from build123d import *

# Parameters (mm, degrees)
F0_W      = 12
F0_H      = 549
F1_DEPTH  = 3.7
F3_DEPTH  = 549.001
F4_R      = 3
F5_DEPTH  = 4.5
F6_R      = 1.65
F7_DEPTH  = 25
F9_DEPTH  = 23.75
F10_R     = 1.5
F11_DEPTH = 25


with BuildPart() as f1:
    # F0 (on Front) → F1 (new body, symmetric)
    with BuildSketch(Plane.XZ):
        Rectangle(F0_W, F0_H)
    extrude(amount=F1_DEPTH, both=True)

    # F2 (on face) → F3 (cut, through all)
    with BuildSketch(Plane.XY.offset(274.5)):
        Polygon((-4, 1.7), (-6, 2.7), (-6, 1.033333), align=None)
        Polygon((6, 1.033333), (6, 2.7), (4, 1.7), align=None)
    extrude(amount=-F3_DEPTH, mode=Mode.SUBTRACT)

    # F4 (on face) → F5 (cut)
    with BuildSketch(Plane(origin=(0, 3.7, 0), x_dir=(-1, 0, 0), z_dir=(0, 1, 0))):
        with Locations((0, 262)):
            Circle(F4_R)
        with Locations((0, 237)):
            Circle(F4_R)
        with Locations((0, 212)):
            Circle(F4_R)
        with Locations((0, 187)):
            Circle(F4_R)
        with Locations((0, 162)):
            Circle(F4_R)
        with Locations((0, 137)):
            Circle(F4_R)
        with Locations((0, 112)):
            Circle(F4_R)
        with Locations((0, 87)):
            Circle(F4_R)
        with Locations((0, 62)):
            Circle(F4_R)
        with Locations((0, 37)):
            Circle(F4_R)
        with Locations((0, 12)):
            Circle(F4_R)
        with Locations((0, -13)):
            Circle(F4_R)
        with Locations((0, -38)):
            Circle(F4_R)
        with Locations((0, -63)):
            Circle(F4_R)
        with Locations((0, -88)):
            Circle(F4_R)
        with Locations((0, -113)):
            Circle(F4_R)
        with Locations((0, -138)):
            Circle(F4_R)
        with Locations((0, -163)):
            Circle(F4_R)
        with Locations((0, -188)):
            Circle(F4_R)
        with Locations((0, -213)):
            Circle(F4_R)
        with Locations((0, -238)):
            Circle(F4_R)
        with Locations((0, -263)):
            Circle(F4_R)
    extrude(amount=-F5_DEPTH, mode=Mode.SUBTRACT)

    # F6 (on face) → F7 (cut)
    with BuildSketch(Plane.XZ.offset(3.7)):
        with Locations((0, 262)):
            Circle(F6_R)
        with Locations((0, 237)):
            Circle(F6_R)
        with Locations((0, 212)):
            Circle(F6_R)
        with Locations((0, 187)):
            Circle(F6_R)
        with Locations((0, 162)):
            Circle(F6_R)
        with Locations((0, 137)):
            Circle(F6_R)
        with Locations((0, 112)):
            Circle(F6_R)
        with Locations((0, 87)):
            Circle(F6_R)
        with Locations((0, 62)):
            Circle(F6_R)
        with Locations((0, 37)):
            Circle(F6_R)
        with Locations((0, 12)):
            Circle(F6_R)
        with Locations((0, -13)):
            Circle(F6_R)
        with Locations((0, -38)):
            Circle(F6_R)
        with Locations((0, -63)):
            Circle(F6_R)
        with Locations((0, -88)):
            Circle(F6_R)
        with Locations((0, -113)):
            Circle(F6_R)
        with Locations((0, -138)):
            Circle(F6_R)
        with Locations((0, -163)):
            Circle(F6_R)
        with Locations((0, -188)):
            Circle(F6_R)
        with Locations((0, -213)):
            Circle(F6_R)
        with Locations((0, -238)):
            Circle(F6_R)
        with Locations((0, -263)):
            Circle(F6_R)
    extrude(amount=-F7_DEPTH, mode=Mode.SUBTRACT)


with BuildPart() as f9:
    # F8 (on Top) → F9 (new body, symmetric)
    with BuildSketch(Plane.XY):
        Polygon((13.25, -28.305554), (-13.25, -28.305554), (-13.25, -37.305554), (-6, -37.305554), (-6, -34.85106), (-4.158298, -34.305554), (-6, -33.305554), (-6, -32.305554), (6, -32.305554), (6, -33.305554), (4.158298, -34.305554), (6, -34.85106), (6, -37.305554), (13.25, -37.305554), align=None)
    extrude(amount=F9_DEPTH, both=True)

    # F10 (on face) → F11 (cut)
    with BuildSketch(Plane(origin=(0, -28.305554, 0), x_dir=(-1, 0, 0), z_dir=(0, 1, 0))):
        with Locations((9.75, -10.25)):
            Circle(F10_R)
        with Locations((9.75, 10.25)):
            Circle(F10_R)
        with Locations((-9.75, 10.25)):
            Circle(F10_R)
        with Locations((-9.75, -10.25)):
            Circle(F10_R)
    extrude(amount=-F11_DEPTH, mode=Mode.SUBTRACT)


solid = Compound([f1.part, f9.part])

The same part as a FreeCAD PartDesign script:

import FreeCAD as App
import Part
import Sketcher

doc = App.newDocument("Part")
body = doc.addObject("PartDesign::Body", "Body")

# Sketch on XZ plane
sketch1 = doc.addObject("Sketcher::SketchObject", "Sketch")
body.addObject(sketch1)
sketch1.AttachmentSupport = (doc.XZ_Plane, [""])
sketch1.MapMode = "FlatFace"
sketch1.addGeometry([
    Part.LineSegment(App.Vector(-6, 274.5, 0), App.Vector(-6, -274.5, 0)),
    Part.LineSegment(App.Vector(-6, -274.5, 0), App.Vector(6, -274.5, 0)),
    Part.LineSegment(App.Vector(6, -274.5, 0), App.Vector(6, 274.5, 0)),
    Part.LineSegment(App.Vector(6, 274.5, 0), App.Vector(-6, 274.5, 0)),
], False)
sketch1.addConstraint([
    Sketcher.Constraint("Coincident", 0, 2, 1, 1),
    Sketcher.Constraint("Coincident", 1, 2, 2, 1),
    Sketcher.Constraint("Coincident", 2, 2, 3, 1),
    Sketcher.Constraint("Coincident", 3, 2, 0, 1),
    Sketcher.Constraint("Vertical", 0),
    Sketcher.Constraint("Horizontal", 1),
    Sketcher.Constraint("Vertical", 2),
    Sketcher.Constraint("Horizontal", 3),
    Sketcher.Constraint("Symmetric", 0, 2, 2, 2, -1, 1),
    Sketcher.Constraint("DistanceX", 1, 1, 1, 2, 12.0),
    Sketcher.Constraint("DistanceY", 0, 2, 0, 1, 549.0),
])
pad1 = doc.addObject("PartDesign::Pad", "Pad")
body.addObject(pad1)
pad1.Profile = sketch1
pad1.Length = 7.4
pad1.Midplane = True

# Sketch on XY plane
sketch2 = doc.addObject("Sketcher::SketchObject", "Sketch001")
body.addObject(sketch2)
sketch2.AttachmentSupport = (doc.XY_Plane, [""])
sketch2.MapMode = "FlatFace"
sketch2.AttachmentOffset = App.Placement(App.Vector(0, 0, 274.5), App.Rotation())
sketch2.addGeometry([
    Part.LineSegment(App.Vector(-4, 1.7, 0), App.Vector(-6, 2.7, 0)),  # 0
    Part.LineSegment(App.Vector(-6, 2.7, 0), App.Vector(-6, 1.033333, 0)),  # 1
    Part.LineSegment(App.Vector(-6, 1.033333, 0), App.Vector(-4, 1.7, 0)),  # 2
    Part.LineSegment(App.Vector(6, 1.033333, 0), App.Vector(6, 2.7, 0)),  # 3
    Part.LineSegment(App.Vector(6, 2.7, 0), App.Vector(4, 1.7, 0)),  # 4
    Part.LineSegment(App.Vector(4, 1.7, 0), App.Vector(6, 1.033333, 0)),  # 5
], False)
sketch2.addConstraint([
    Sketcher.Constraint("Coincident", 0, 2, 1, 1),
    Sketcher.Constraint("Coincident", 1, 2, 2, 1),
    Sketcher.Constraint("Coincident", 2, 2, 0, 1),
    Sketcher.Constraint("Coincident", 3, 2, 4, 1),
    Sketcher.Constraint("Coincident", 4, 2, 5, 1),
    Sketcher.Constraint("Coincident", 5, 2, 3, 1),
    Sketcher.Constraint("Vertical", 1),
    Sketcher.Constraint("Vertical", 3),
    Sketcher.Constraint("Symmetric", 0, 2, 3, 2, -2),
    Sketcher.Constraint("Symmetric", 2, 2, 4, 2, -2),
    Sketcher.Constraint("Horizontal", 1, 2, 5, 2),
    Sketcher.Constraint("DistanceX", 0, 2, -1, 1, 6.0),
    Sketcher.Constraint("DistanceX", 2, 2, -1, 1, 4.0),
    Sketcher.Constraint("DistanceY", 2, 2, 0, 2, 1.0),
    Sketcher.Constraint("DistanceY", -1, 1, 0, 2, 2.7),
    Sketcher.Constraint("DistanceY", 1, 2, 1, 1, 1.666667),
])
pocket1 = doc.addObject("PartDesign::Pocket", "Pocket")
body.addObject(pocket1)
pocket1.Profile = sketch2
pocket1.Type = "ThroughAll"

# Sketch on XZ plane
sketch3 = doc.addObject("Sketcher::SketchObject", "Sketch002")
body.addObject(sketch3)
sketch3.AttachmentSupport = (doc.XZ_Plane, [""])
sketch3.MapMode = "FlatFace"
sketch3.AttachmentOffset = App.Placement(App.Vector(0, 0, -3.7), App.Rotation())
sketch3.addGeometry([
    Part.Circle(App.Vector(0, 262, 0), App.Vector(0, 0, 1), 3),  # 0
    Part.Circle(App.Vector(0, 237, 0), App.Vector(0, 0, 1), 3),  # 1
    Part.Circle(App.Vector(0, 212, 0), App.Vector(0, 0, 1), 3),  # 2
    Part.Circle(App.Vector(0, 187, 0), App.Vector(0, 0, 1), 3),  # 3
    Part.Circle(App.Vector(0, 162, 0), App.Vector(0, 0, 1), 3),  # 4
    Part.Circle(App.Vector(0, 137, 0), App.Vector(0, 0, 1), 3),  # 5
    Part.Circle(App.Vector(0, 112, 0), App.Vector(0, 0, 1), 3),  # 6
    Part.Circle(App.Vector(0, 87, 0), App.Vector(0, 0, 1), 3),  # 7
    Part.Circle(App.Vector(0, 62, 0), App.Vector(0, 0, 1), 3),  # 8
    Part.Circle(App.Vector(0, 37, 0), App.Vector(0, 0, 1), 3),  # 9
    Part.Circle(App.Vector(0, 12, 0), App.Vector(0, 0, 1), 3),  # 10
    Part.Circle(App.Vector(0, -13, 0), App.Vector(0, 0, 1), 3),  # 11
    Part.Circle(App.Vector(0, -38, 0), App.Vector(0, 0, 1), 3),  # 12
    Part.Circle(App.Vector(0, -63, 0), App.Vector(0, 0, 1), 3),  # 13
    Part.Circle(App.Vector(0, -88, 0), App.Vector(0, 0, 1), 3),  # 14
    Part.Circle(App.Vector(0, -113, 0), App.Vector(0, 0, 1), 3),  # 15
    Part.Circle(App.Vector(0, -138, 0), App.Vector(0, 0, 1), 3),  # 16
    Part.Circle(App.Vector(0, -163, 0), App.Vector(0, 0, 1), 3),  # 17
    Part.Circle(App.Vector(0, -188, 0), App.Vector(0, 0, 1), 3),  # 18
    Part.Circle(App.Vector(0, -213, 0), App.Vector(0, 0, 1), 3),  # 19
    Part.Circle(App.Vector(0, -238, 0), App.Vector(0, 0, 1), 3),  # 20
    Part.Circle(App.Vector(0, -263, 0), App.Vector(0, 0, 1), 3),  # 21
], False)
sketch3.addConstraint([
    Sketcher.Constraint("Equal", 0, 1),
    Sketcher.Constraint("Equal", 1, 2),
    Sketcher.Constraint("Equal", 2, 3),
    Sketcher.Constraint("Equal", 3, 4),
    Sketcher.Constraint("Equal", 4, 5),
    Sketcher.Constraint("Equal", 5, 6),
    Sketcher.Constraint("Equal", 6, 7),
    Sketcher.Constraint("Equal", 7, 8),
    Sketcher.Constraint("Equal", 8, 9),
    Sketcher.Constraint("Equal", 9, 10),
    Sketcher.Constraint("Equal", 10, 11),
    Sketcher.Constraint("Equal", 11, 12),
    Sketcher.Constraint("Equal", 12, 13),
    Sketcher.Constraint("Equal", 13, 14),
    Sketcher.Constraint("Equal", 14, 15),
    Sketcher.Constraint("Equal", 15, 16),
    Sketcher.Constraint("Equal", 16, 17),
    Sketcher.Constraint("Equal", 17, 18),
    Sketcher.Constraint("Equal", 18, 19),
    Sketcher.Constraint("Equal", 19, 20),
    Sketcher.Constraint("Equal", 20, 21),
    Sketcher.Constraint("PointOnObject", 0, 3, -2),
    Sketcher.Constraint("PointOnObject", 1, 3, -2),
    Sketcher.Constraint("PointOnObject", 2, 3, -2),
    Sketcher.Constraint("PointOnObject", 3, 3, -2),
    Sketcher.Constraint("PointOnObject", 4, 3, -2),
    Sketcher.Constraint("PointOnObject", 5, 3, -2),
    Sketcher.Constraint("PointOnObject", 6, 3, -2),
    Sketcher.Constraint("PointOnObject", 7, 3, -2),
    Sketcher.Constraint("PointOnObject", 8, 3, -2),
    Sketcher.Constraint("PointOnObject", 9, 3, -2),
    Sketcher.Constraint("PointOnObject", 10, 3, -2),
    Sketcher.Constraint("PointOnObject", 11, 3, -2),
    Sketcher.Constraint("PointOnObject", 12, 3, -2),
    Sketcher.Constraint("PointOnObject", 13, 3, -2),
    Sketcher.Constraint("PointOnObject", 14, 3, -2),
    Sketcher.Constraint("PointOnObject", 15, 3, -2),
    Sketcher.Constraint("PointOnObject", 16, 3, -2),
    Sketcher.Constraint("PointOnObject", 17, 3, -2),
    Sketcher.Constraint("PointOnObject", 18, 3, -2),
    Sketcher.Constraint("PointOnObject", 19, 3, -2),
    Sketcher.Constraint("PointOnObject", 20, 3, -2),
    Sketcher.Constraint("PointOnObject", 21, 3, -2),
    Sketcher.Constraint("Diameter", 0, 6.0),
    Sketcher.Constraint("DistanceY", -1, 1, 0, 3, 262.0),
    Sketcher.Constraint("DistanceY", -1, 1, 1, 3, 237.0),
    Sketcher.Constraint("DistanceY", -1, 1, 2, 3, 212.0),
    Sketcher.Constraint("DistanceY", -1, 1, 3, 3, 187.0),
    Sketcher.Constraint("DistanceY", -1, 1, 4, 3, 162.0),
    Sketcher.Constraint("DistanceY", -1, 1, 5, 3, 137.0),
    Sketcher.Constraint("DistanceY", -1, 1, 6, 3, 112.0),
    Sketcher.Constraint("DistanceY", -1, 1, 7, 3, 87.0),
    Sketcher.Constraint("DistanceY", -1, 1, 8, 3, 62.0),
    Sketcher.Constraint("DistanceY", -1, 1, 9, 3, 37.0),
    Sketcher.Constraint("DistanceY", -1, 1, 10, 3, 12.0),
    Sketcher.Constraint("DistanceY", 11, 3, -1, 1, 13.0),
    Sketcher.Constraint("DistanceY", 12, 3, -1, 1, 38.0),
    Sketcher.Constraint("DistanceY", 13, 3, -1, 1, 63.0),
    Sketcher.Constraint("DistanceY", 14, 3, -1, 1, 88.0),
    Sketcher.Constraint("DistanceY", 15, 3, -1, 1, 113.0),
    Sketcher.Constraint("DistanceY", 16, 3, -1, 1, 138.0),
    Sketcher.Constraint("DistanceY", 17, 3, -1, 1, 163.0),
    Sketcher.Constraint("DistanceY", 18, 3, -1, 1, 188.0),
    Sketcher.Constraint("DistanceY", 19, 3, -1, 1, 213.0),
    Sketcher.Constraint("DistanceY", 20, 3, -1, 1, 238.0),
    Sketcher.Constraint("DistanceY", 21, 3, -1, 1, 263.0),
])
pocket2 = doc.addObject("PartDesign::Pocket", "Pocket001")
body.addObject(pocket2)
pocket2.Profile = sketch3
pocket2.Length = 4.5
pocket2.Reversed = True

# Sketch on XZ plane
sketch4 = doc.addObject("Sketcher::SketchObject", "Sketch003")
body.addObject(sketch4)
sketch4.AttachmentSupport = (doc.XZ_Plane, [""])
sketch4.MapMode = "FlatFace"
sketch4.AttachmentOffset = App.Placement(App.Vector(0, 0, 3.7), App.Rotation())
sketch4.addGeometry([
    Part.Circle(App.Vector(0, 262, 0), App.Vector(0, 0, 1), 1.65),  # 0
    Part.Circle(App.Vector(0, 237, 0), App.Vector(0, 0, 1), 1.65),  # 1
    Part.Circle(App.Vector(0, 212, 0), App.Vector(0, 0, 1), 1.65),  # 2
    Part.Circle(App.Vector(0, 187, 0), App.Vector(0, 0, 1), 1.65),  # 3
    Part.Circle(App.Vector(0, 162, 0), App.Vector(0, 0, 1), 1.65),  # 4
    Part.Circle(App.Vector(0, 137, 0), App.Vector(0, 0, 1), 1.65),  # 5
    Part.Circle(App.Vector(0, 112, 0), App.Vector(0, 0, 1), 1.65),  # 6
    Part.Circle(App.Vector(0, 87, 0), App.Vector(0, 0, 1), 1.65),  # 7
    Part.Circle(App.Vector(0, 62, 0), App.Vector(0, 0, 1), 1.65),  # 8
    Part.Circle(App.Vector(0, 37, 0), App.Vector(0, 0, 1), 1.65),  # 9
    Part.Circle(App.Vector(0, 12, 0), App.Vector(0, 0, 1), 1.65),  # 10
    Part.Circle(App.Vector(0, -13, 0), App.Vector(0, 0, 1), 1.65),  # 11
    Part.Circle(App.Vector(0, -38, 0), App.Vector(0, 0, 1), 1.65),  # 12
    Part.Circle(App.Vector(0, -63, 0), App.Vector(0, 0, 1), 1.65),  # 13
    Part.Circle(App.Vector(0, -88, 0), App.Vector(0, 0, 1), 1.65),  # 14
    Part.Circle(App.Vector(0, -113, 0), App.Vector(0, 0, 1), 1.65),  # 15
    Part.Circle(App.Vector(0, -138, 0), App.Vector(0, 0, 1), 1.65),  # 16
    Part.Circle(App.Vector(0, -163, 0), App.Vector(0, 0, 1), 1.65),  # 17
    Part.Circle(App.Vector(0, -188, 0), App.Vector(0, 0, 1), 1.65),  # 18
    Part.Circle(App.Vector(0, -213, 0), App.Vector(0, 0, 1), 1.65),  # 19
    Part.Circle(App.Vector(0, -238, 0), App.Vector(0, 0, 1), 1.65),  # 20
    Part.Circle(App.Vector(0, -263, 0), App.Vector(0, 0, 1), 1.65),  # 21
], False)
sketch4.addConstraint([
    Sketcher.Constraint("Equal", 0, 1),
    Sketcher.Constraint("Equal", 1, 2),
    Sketcher.Constraint("Equal", 2, 3),
    Sketcher.Constraint("Equal", 3, 4),
    Sketcher.Constraint("Equal", 4, 5),
    Sketcher.Constraint("Equal", 5, 6),
    Sketcher.Constraint("Equal", 6, 7),
    Sketcher.Constraint("Equal", 7, 8),
    Sketcher.Constraint("Equal", 8, 9),
    Sketcher.Constraint("Equal", 9, 10),
    Sketcher.Constraint("Equal", 10, 11),
    Sketcher.Constraint("Equal", 11, 12),
    Sketcher.Constraint("Equal", 12, 13),
    Sketcher.Constraint("Equal", 13, 14),
    Sketcher.Constraint("Equal", 14, 15),
    Sketcher.Constraint("Equal", 15, 16),
    Sketcher.Constraint("Equal", 16, 17),
    Sketcher.Constraint("Equal", 17, 18),
    Sketcher.Constraint("Equal", 18, 19),
    Sketcher.Constraint("Equal", 19, 20),
    Sketcher.Constraint("Equal", 20, 21),
    Sketcher.Constraint("PointOnObject", 0, 3, -2),
    Sketcher.Constraint("PointOnObject", 1, 3, -2),
    Sketcher.Constraint("PointOnObject", 2, 3, -2),
    Sketcher.Constraint("PointOnObject", 3, 3, -2),
    Sketcher.Constraint("PointOnObject", 4, 3, -2),
    Sketcher.Constraint("PointOnObject", 5, 3, -2),
    Sketcher.Constraint("PointOnObject", 6, 3, -2),
    Sketcher.Constraint("PointOnObject", 7, 3, -2),
    Sketcher.Constraint("PointOnObject", 8, 3, -2),
    Sketcher.Constraint("PointOnObject", 9, 3, -2),
    Sketcher.Constraint("PointOnObject", 10, 3, -2),
    Sketcher.Constraint("PointOnObject", 11, 3, -2),
    Sketcher.Constraint("PointOnObject", 12, 3, -2),
    Sketcher.Constraint("PointOnObject", 13, 3, -2),
    Sketcher.Constraint("PointOnObject", 14, 3, -2),
    Sketcher.Constraint("PointOnObject", 15, 3, -2),
    Sketcher.Constraint("PointOnObject", 16, 3, -2),
    Sketcher.Constraint("PointOnObject", 17, 3, -2),
    Sketcher.Constraint("PointOnObject", 18, 3, -2),
    Sketcher.Constraint("PointOnObject", 19, 3, -2),
    Sketcher.Constraint("PointOnObject", 20, 3, -2),
    Sketcher.Constraint("PointOnObject", 21, 3, -2),
    Sketcher.Constraint("Diameter", 0, 3.3),
    Sketcher.Constraint("DistanceY", -1, 1, 0, 3, 262.0),
    Sketcher.Constraint("DistanceY", -1, 1, 1, 3, 237.0),
    Sketcher.Constraint("DistanceY", -1, 1, 2, 3, 212.0),
    Sketcher.Constraint("DistanceY", -1, 1, 3, 3, 187.0),
    Sketcher.Constraint("DistanceY", -1, 1, 4, 3, 162.0),
    Sketcher.Constraint("DistanceY", -1, 1, 5, 3, 137.0),
    Sketcher.Constraint("DistanceY", -1, 1, 6, 3, 112.0),
    Sketcher.Constraint("DistanceY", -1, 1, 7, 3, 87.0),
    Sketcher.Constraint("DistanceY", -1, 1, 8, 3, 62.0),
    Sketcher.Constraint("DistanceY", -1, 1, 9, 3, 37.0),
    Sketcher.Constraint("DistanceY", -1, 1, 10, 3, 12.0),
    Sketcher.Constraint("DistanceY", 11, 3, -1, 1, 13.0),
    Sketcher.Constraint("DistanceY", 12, 3, -1, 1, 38.0),
    Sketcher.Constraint("DistanceY", 13, 3, -1, 1, 63.0),
    Sketcher.Constraint("DistanceY", 14, 3, -1, 1, 88.0),
    Sketcher.Constraint("DistanceY", 15, 3, -1, 1, 113.0),
    Sketcher.Constraint("DistanceY", 16, 3, -1, 1, 138.0),
    Sketcher.Constraint("DistanceY", 17, 3, -1, 1, 163.0),
    Sketcher.Constraint("DistanceY", 18, 3, -1, 1, 188.0),
    Sketcher.Constraint("DistanceY", 19, 3, -1, 1, 213.0),
    Sketcher.Constraint("DistanceY", 20, 3, -1, 1, 238.0),
    Sketcher.Constraint("DistanceY", 21, 3, -1, 1, 263.0),
])
pocket3 = doc.addObject("PartDesign::Pocket", "Pocket002")
body.addObject(pocket3)
pocket3.Profile = sketch4
pocket3.Length = 25
body2 = doc.addObject("PartDesign::Body", "Body001")

# Sketch on XY plane
sketch5 = doc.addObject("Sketcher::SketchObject", "Sketch004")
body2.addObject(sketch5)
sketch5.AttachmentSupport = (doc.getObject("XY_Plane001"), [""])
sketch5.MapMode = "FlatFace"
sketch5.addGeometry([
    Part.LineSegment(App.Vector(13.25, -28.305554, 0), App.Vector(-13.25, -28.305554, 0)),  # 0
    Part.LineSegment(App.Vector(-13.25, -28.305554, 0), App.Vector(-13.25, -37.305554, 0)),  # 1
    Part.LineSegment(App.Vector(-13.25, -37.305554, 0), App.Vector(-6, -37.305554, 0)),  # 2
    Part.LineSegment(App.Vector(-6, -37.305554, 0), App.Vector(-6, -34.85106, 0)),  # 3
    Part.LineSegment(App.Vector(-6, -34.85106, 0), App.Vector(-4.158298, -34.305554, 0)),  # 4
    Part.LineSegment(App.Vector(-4.158298, -34.305554, 0), App.Vector(-6, -33.305554, 0)),  # 5
    Part.LineSegment(App.Vector(-6, -33.305554, 0), App.Vector(-6, -32.305554, 0)),  # 6
    Part.LineSegment(App.Vector(-6, -32.305554, 0), App.Vector(6, -32.305554, 0)),  # 7
    Part.LineSegment(App.Vector(6, -32.305554, 0), App.Vector(6, -33.305554, 0)),  # 8
    Part.LineSegment(App.Vector(6, -33.305554, 0), App.Vector(4.158298, -34.305554, 0)),  # 9
    Part.LineSegment(App.Vector(4.158298, -34.305554, 0), App.Vector(6, -34.85106, 0)),  # 10
    Part.LineSegment(App.Vector(6, -34.85106, 0), App.Vector(6, -37.305554, 0)),  # 11
    Part.LineSegment(App.Vector(6, -37.305554, 0), App.Vector(13.25, -37.305554, 0)),  # 12
    Part.LineSegment(App.Vector(13.25, -37.305554, 0), App.Vector(13.25, -28.305554, 0)),  # 13
], False)
sketch5.addConstraint([
    Sketcher.Constraint("Coincident", 0, 2, 1, 1),
    Sketcher.Constraint("Coincident", 1, 2, 2, 1),
    Sketcher.Constraint("Coincident", 2, 2, 3, 1),
    Sketcher.Constraint("Coincident", 3, 2, 4, 1),
    Sketcher.Constraint("Coincident", 4, 2, 5, 1),
    Sketcher.Constraint("Coincident", 5, 2, 6, 1),
    Sketcher.Constraint("Coincident", 6, 2, 7, 1),
    Sketcher.Constraint("Coincident", 7, 2, 8, 1),
    Sketcher.Constraint("Coincident", 8, 2, 9, 1),
    Sketcher.Constraint("Coincident", 9, 2, 10, 1),
    Sketcher.Constraint("Coincident", 10, 2, 11, 1),
    Sketcher.Constraint("Coincident", 11, 2, 12, 1),
    Sketcher.Constraint("Coincident", 12, 2, 13, 1),
    Sketcher.Constraint("Coincident", 13, 2, 0, 1),
    Sketcher.Constraint("Horizontal", 0),
    Sketcher.Constraint("Vertical", 1),
    Sketcher.Constraint("Horizontal", 2),
    Sketcher.Constraint("Vertical", 3),
    Sketcher.Constraint("Vertical", 6),
    Sketcher.Constraint("Horizontal", 7),
    Sketcher.Constraint("Vertical", 8),
    Sketcher.Constraint("Vertical", 11),
    Sketcher.Constraint("Horizontal", 12),
    Sketcher.Constraint("Vertical", 13),
    Sketcher.Constraint("Symmetric", 5, 2, 8, 2, -2),
    Sketcher.Constraint("Symmetric", 4, 2, 9, 2, -2),
    Sketcher.Constraint("Symmetric", 3, 2, 10, 2, -2),
    Sketcher.Constraint("Symmetric", 1, 2, 12, 2, -2),
    Sketcher.Constraint("Vertical", 3, 2, 5, 2),
    Sketcher.Constraint("DistanceX", 7, 1, 7, 2, 12.0),
    Sketcher.Constraint("DistanceY", 1, 2, 1, 1, 9.0),
    Sketcher.Constraint("DistanceY", 6, 1, 6, 2, 1.0),
    Sketcher.Constraint("DistanceX", 0, 2, 0, 1, 26.5),
    Sketcher.Constraint("DistanceY", 2, 2, 4, 2, 3.0),
    Sketcher.Constraint("DistanceY", 4, 2, 5, 2, 1.0),
    Sketcher.Constraint("DistanceX", 4, 2, -1, 1, 4.158298),
    Sketcher.Constraint("DistanceY", 3, 1, 3, 2, 2.454494),
    Sketcher.Constraint("DistanceY", 3, 2, -1, 1, 34.85106),
])
pad2 = doc.addObject("PartDesign::Pad", "Pad001")
body2.addObject(pad2)
pad2.Profile = sketch5
pad2.Length = 47.5
pad2.Midplane = True

# Sketch on XZ plane
sketch6 = doc.addObject("Sketcher::SketchObject", "Sketch005")
body2.addObject(sketch6)
sketch6.AttachmentSupport = (doc.getObject("XZ_Plane001"), [""])
sketch6.MapMode = "FlatFace"
sketch6.AttachmentOffset = App.Placement(App.Vector(0, 0, 28.305554), App.Rotation())
sketch6.addGeometry([
    Part.Circle(App.Vector(-9.75, -10.25, 0), App.Vector(0, 0, 1), 1.5),
    Part.Circle(App.Vector(-9.75, 10.25, 0), App.Vector(0, 0, 1), 1.5),
    Part.Circle(App.Vector(9.75, 10.25, 0), App.Vector(0, 0, 1), 1.5),
    Part.Circle(App.Vector(9.75, -10.25, 0), App.Vector(0, 0, 1), 1.5),
], False)
sketch6.addConstraint([
    Sketcher.Constraint("Equal", 0, 1),
    Sketcher.Constraint("Equal", 1, 2),
    Sketcher.Constraint("Equal", 2, 3),
    Sketcher.Constraint("Symmetric", 0, 3, 2, 3, -1, 1),
    Sketcher.Constraint("Symmetric", 1, 3, 3, 3, -1, 1),
    Sketcher.Constraint("Symmetric", 1, 3, 2, 3, -2),
    Sketcher.Constraint("Diameter", 0, 3.0),
    Sketcher.Constraint("DistanceY", 0, 3, 1, 3, 20.5),
    Sketcher.Constraint("DistanceX", 1, 3, 2, 3, 19.5),
])
pocket4 = doc.addObject("PartDesign::Pocket", "Pocket003")
body2.addObject(pocket4)
pocket4.Profile = sketch6
pocket4.Length = 25
pocket4.Reversed = True

doc.recompute()
